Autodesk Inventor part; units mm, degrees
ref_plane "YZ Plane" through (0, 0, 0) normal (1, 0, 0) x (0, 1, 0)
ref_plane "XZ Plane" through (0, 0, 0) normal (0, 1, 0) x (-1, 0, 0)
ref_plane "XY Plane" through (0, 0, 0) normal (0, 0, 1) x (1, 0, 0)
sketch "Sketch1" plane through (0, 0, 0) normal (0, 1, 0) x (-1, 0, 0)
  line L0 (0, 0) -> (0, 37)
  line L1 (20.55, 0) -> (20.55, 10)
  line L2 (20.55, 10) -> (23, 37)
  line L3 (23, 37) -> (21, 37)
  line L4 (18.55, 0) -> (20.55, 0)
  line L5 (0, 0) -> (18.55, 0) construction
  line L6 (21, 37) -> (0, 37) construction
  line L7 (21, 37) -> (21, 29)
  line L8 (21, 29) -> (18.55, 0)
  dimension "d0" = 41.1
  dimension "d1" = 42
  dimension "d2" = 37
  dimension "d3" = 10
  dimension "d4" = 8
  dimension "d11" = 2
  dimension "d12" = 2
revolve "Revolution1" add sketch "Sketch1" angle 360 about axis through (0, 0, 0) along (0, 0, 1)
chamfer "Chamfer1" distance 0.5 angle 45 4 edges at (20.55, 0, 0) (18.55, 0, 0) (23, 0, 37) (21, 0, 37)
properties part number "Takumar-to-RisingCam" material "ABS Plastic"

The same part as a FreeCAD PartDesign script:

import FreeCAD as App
import Part
import Sketcher

V = App.Vector
Q = App.Units.Quantity


def edges_at(feature, points):
    """Names of the edges that pass closest to the given points."""
    edges = feature.Shape.Edges
    near = lambda p: min(range(len(edges)), key=lambda i: edges[i].distToShape(Part.Vertex(*p))[0])
    return sorted({f"Edge{near(p) + 1}" for p in points})


def add_polygon(sketch, points):
    """Adds a closed chain of lines whose ends are joined by coincident constraints."""
    first, n = sketch.GeometryCount, len(points)
    for a, b in zip(points, points[1:] + points[:1]):
        sketch.addGeometry(Part.LineSegment(App.Vector(*a, 0), App.Vector(*b, 0)), False)
    for i in range(n):
        sketch.addConstraint(Sketcher.Constraint("Coincident", first + i, 2, first + (i + 1) % n, 1))

doc = App.newDocument("Part")
body = doc.addObject("PartDesign::Body", "Body")

sketch1 = body.newObject("Sketcher::SketchObject", "Sketch")
sketch1.AttachmentSupport = (doc.getObject("XZ_Plane"), [""])
sketch1.MapMode = "FlatFace"
add_polygon(sketch1, [(-18.55, 0), (-20.55, 0), (-20.55, 10), (-23, 37), (-21, 37), (-21, 29)])
sketch1.addConstraint([
    Sketcher.Constraint("Horizontal", 0),
    Sketcher.Constraint("Vertical", 1),
    Sketcher.Constraint("Horizontal", 3),
    Sketcher.Constraint("Vertical", 4),
    Sketcher.Constraint("PointOnObject", 0, 2, -1),
    Sketcher.Constraint("Equal", 0, 3),
    Sketcher.Constraint("DistanceX", 0, 2, 0, 1, 2.0),
    Sketcher.Constraint("DistanceY", 1, 1, 1, 2, 10.0),
    Sketcher.Constraint("DistanceY", 4, 2, 4, 1, 8.0),
    Sketcher.Constraint("DistanceY", -1, 1, 2, 2, 37.0),
    Sketcher.Constraint("DistanceX", 2, 2, -1, 1, 23.0),
    Sketcher.Constraint("Angle", 5, Q("-85.171 deg")),
])
revolution = body.newObject("PartDesign::Revolution", "Revolution")
revolution.Profile = sketch1
revolution.ReferenceAxis = (sketch1, ["V_Axis"])
revolution.Angle = 360
doc.recompute()

chamfer = body.newObject("PartDesign::Chamfer", "Chamfer")
chamfer.Base = (revolution, edges_at(revolution, [
    (20.55, 0, 0),
    (18.55, 0, 0),
    (23, 0, 37),
    (21, 0, 37),
]))
chamfer.Size = 0.5

doc.recompute()
